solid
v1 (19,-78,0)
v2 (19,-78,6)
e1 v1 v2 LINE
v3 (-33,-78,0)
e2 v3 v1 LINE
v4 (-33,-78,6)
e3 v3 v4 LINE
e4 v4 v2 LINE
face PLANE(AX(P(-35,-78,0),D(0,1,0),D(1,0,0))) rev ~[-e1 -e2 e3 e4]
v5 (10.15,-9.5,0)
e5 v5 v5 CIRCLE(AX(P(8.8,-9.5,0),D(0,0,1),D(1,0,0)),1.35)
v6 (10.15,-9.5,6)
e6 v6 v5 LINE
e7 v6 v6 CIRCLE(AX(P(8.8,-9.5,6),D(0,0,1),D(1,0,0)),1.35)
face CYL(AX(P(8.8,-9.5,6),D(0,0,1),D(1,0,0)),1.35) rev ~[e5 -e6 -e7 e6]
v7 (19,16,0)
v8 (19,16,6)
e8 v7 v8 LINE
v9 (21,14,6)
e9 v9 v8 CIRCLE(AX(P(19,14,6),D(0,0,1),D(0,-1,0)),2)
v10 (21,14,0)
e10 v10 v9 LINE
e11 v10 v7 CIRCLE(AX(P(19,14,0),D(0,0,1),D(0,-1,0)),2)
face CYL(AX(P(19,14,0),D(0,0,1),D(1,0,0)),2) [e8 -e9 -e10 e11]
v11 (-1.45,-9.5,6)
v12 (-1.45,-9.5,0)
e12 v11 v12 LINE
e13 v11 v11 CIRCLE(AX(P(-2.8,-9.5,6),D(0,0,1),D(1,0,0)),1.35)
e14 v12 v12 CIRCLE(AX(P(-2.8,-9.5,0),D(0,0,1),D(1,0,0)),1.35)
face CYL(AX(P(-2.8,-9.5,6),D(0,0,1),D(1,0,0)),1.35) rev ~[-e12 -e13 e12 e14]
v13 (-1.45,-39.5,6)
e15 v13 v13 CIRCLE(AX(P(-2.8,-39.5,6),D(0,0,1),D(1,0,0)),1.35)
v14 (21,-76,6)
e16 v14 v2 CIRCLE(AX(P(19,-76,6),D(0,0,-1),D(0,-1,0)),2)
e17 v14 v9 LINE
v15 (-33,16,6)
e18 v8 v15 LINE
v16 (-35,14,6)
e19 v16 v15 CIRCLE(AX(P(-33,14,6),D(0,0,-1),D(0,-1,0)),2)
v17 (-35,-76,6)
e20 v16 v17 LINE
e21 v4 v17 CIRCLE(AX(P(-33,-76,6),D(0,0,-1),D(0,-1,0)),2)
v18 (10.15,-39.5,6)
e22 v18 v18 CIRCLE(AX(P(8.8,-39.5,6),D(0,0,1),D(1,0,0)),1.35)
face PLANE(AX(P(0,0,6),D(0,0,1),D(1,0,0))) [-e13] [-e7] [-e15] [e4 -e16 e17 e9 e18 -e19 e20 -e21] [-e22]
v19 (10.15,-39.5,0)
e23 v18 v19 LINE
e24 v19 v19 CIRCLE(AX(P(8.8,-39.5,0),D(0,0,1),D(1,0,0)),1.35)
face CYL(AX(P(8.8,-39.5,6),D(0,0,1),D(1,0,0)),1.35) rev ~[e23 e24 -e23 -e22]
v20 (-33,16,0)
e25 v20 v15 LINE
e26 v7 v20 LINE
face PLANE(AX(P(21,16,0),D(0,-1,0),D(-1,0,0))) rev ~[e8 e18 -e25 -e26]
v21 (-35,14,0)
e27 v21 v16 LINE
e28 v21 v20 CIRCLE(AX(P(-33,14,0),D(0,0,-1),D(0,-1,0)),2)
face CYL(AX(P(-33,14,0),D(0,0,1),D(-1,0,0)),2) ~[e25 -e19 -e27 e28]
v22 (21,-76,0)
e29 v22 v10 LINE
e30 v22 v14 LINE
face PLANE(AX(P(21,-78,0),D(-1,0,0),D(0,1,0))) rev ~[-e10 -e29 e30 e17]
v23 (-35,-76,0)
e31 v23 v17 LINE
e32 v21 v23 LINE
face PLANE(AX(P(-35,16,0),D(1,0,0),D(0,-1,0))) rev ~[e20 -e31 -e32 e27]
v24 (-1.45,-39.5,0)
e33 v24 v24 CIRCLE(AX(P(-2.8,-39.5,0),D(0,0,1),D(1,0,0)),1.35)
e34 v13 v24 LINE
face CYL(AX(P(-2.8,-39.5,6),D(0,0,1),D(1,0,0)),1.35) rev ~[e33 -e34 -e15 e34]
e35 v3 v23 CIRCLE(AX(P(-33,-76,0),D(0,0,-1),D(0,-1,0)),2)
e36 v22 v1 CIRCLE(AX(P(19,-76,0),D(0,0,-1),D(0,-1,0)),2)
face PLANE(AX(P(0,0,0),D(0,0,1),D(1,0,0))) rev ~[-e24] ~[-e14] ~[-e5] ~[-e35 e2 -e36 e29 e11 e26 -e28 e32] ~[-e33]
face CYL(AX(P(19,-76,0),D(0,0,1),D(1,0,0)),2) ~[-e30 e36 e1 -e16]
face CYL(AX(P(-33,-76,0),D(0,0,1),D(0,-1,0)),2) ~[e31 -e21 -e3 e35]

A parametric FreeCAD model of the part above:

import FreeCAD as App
import Part
import Sketcher


def edges_at(feature, points):
    """Names of the edges that pass closest to the given points."""
    edges = feature.Shape.Edges
    near = lambda p: min(range(len(edges)), key=lambda i: edges[i].distToShape(Part.Vertex(*p))[0])
    return sorted({f"Edge{near(p) + 1}" for p in points})

doc = App.newDocument("Part")
params = doc.addObject("Spreadsheet::Sheet", "Params")
for row, (alias, value) in enumerate([
    ("sketch1_diameter", "2.7 mm"),
    ("sketch1_width", "56 mm"),
    ("sketch1_height", "94 mm"),
    ("sketch1_width2", "6.1 mm"),
    ("pad1_length", "6 mm"),
    ("fillet_radius", "2 mm"),
    ("sketch2_width", "10.1 mm"),
    ("sketch2_height", "6.1 mm"),
    ("pocket1_length", "10 mm"),
    ("sketch3_diameter", "2 mm"),
    ("pocket2_length", "10 mm"),
    ("sketch4_diameter", "2.7 mm"),
    ("pocket3_length", "10 mm"),
    ("pad2_length", "6 mm"),
], start=1):
    params.set(f"A{row}", alias)
    params.set(f"B{row}", "=" + value)
    params.setAlias(f"B{row}", alias)

body = doc.addObject("PartDesign::Body", "Body")

# Sketch on XY plane
sketch1 = body.newObject("Sketcher::SketchObject", "Sketch")
sketch1.AttachmentSupport = (doc.getObject("XY_Plane"), [""])
sketch1.MapMode = "FlatFace"
sketch1.addGeometry([
    Part.LineSegment(App.Vector(21, -78, 0), App.Vector(21, 16, 0)),  # 0
    Part.LineSegment(App.Vector(21, 16, 0), App.Vector(-35, 16, 0)),  # 1
    Part.LineSegment(App.Vector(-35, 16, 0), App.Vector(-35, -78, 0)),  # 2
    Part.LineSegment(App.Vector(-35, -78, 0), App.Vector(21, -78, 0)),  # 3
    Part.Circle(App.Vector(-5, -53.9, 0), App.Vector(0, 0, 1), 1.4),  # 4
    Part.LineSegment(App.Vector(-0.1, -57, 0), App.Vector(-0.1, -50.9, 0)),  # 5
    Part.LineSegment(App.Vector(-0.1, -50.9, 0), App.Vector(6, -50.9, 0)),  # 6
    Part.LineSegment(App.Vector(6, -50.9, 0), App.Vector(6, -57, 0)),  # 7
    Part.LineSegment(App.Vector(6, -57, 0), App.Vector(-0.1, -57, 0)),  # 8
    Part.Circle(App.Vector(11, -53.9, 0), App.Vector(0, 0, 1), 1.4),  # 9
    Part.Circle(App.Vector(-5, 3, 0), App.Vector(0, 0, 1), 1.4),  # 10
    Part.LineSegment(App.Vector(-0.1, -0.1, 0), App.Vector(-0.1, 6, 0)),  # 11
    Part.LineSegment(App.Vector(-0.1, 6, 0), App.Vector(6, 6, 0)),  # 12
    Part.LineSegment(App.Vector(6, 6, 0), App.Vector(6, -0.1, 0)),  # 13
    Part.LineSegment(App.Vector(6, -0.1, 0), App.Vector(-0.1, -0.1, 0)),  # 14
    Part.Circle(App.Vector(11, 3, 0), App.Vector(0, 0, 1), 1.4),  # 15
], False)
sketch1.addConstraint([
    Sketcher.Constraint("Coincident", 0, 2, 1, 1),
    Sketcher.Constraint("Coincident", 1, 2, 2, 1),
    Sketcher.Constraint("Coincident", 2, 2, 3, 1),
    Sketcher.Constraint("Coincident", 3, 2, 0, 1),
    Sketcher.Constraint("Coincident", 5, 2, 6, 1),
    Sketcher.Constraint("Coincident", 6, 2, 7, 1),
    Sketcher.Constraint("Coincident", 7, 2, 8, 1),
    Sketcher.Constraint("Coincident", 8, 2, 5, 1),
    Sketcher.Constraint("Coincident", 11, 2, 12, 1),
    Sketcher.Constraint("Coincident", 12, 2, 13, 1),
    Sketcher.Constraint("Coincident", 13, 2, 14, 1),
    Sketcher.Constraint("Coincident", 14, 2, 11, 1),
    Sketcher.Constraint("Vertical", 0),
    Sketcher.Constraint("Horizontal", 1),
    Sketcher.Constraint("Vertical", 2),
    Sketcher.Constraint("Horizontal", 3),
    Sketcher.Constraint("Vertical", 5),
    Sketcher.Constraint("Horizontal", 6),
    Sketcher.Constraint("Vertical", 7),
    Sketcher.Constraint("Horizontal", 8),
    Sketcher.Constraint("Vertical", 11),
    Sketcher.Constraint("Horizontal", 12),
    Sketcher.Constraint("Vertical", 13),
    Sketcher.Constraint("Horizontal", 14),
    Sketcher.Constraint("Equal", 4, 9),
    Sketcher.Constraint("Equal", 9, 10),
    Sketcher.Constraint("Equal", 10, 15),
    Sketcher.Constraint("Horizontal", 4, 3, 9, 3),
    Sketcher.Constraint("Horizontal", 10, 3, 15, 3),
    Sketcher.Constraint("Vertical", 4, 3, 10, 3),
    Sketcher.Constraint("Vertical", 9, 3, 15, 3),
    Sketcher.Constraint("Vertical", 8, 2, 11, 2),
    Sketcher.Constraint("Vertical", 7, 2, 12, 2),
    Sketcher.Constraint("Equal", 14, 5),
    Sketcher.Constraint("Equal", 7, 11),
    Sketcher.Constraint("Diameter", 4, 2.7),
    Sketcher.Constraint("DistanceX", 1, 2, 1, 1, 56.0),
    Sketcher.Constraint("DistanceY", 0, 1, 0, 2, 94.0),
    Sketcher.Constraint("DistanceX", 6, 1, 6, 2, 6.1),
    Sketcher.Constraint("DistanceX", 4, 3, -1, 1, 5.0),
    Sketcher.Constraint("DistanceX", -1, 1, 9, 3, 11.0),
    Sketcher.Constraint("DistanceY", -1, 1, 10, 3, 3.0),
    Sketcher.Constraint("DistanceX", -1, 1, 0, 2, 21.0),
    Sketcher.Constraint("DistanceY", -1, 1, 0, 2, 16.0),
    Sketcher.Constraint("DistanceY", 4, 3, -1, 1, 53.9),
    Sketcher.Constraint("DistanceY", 5, 2, 11, 2, 56.9),
    Sketcher.Constraint("DistanceX", 5, 2, -1, 1, 0.05),
    Sketcher.Constraint("DistanceY", 5, 2, -1, 1, 50.85),
])
sketch1.setExpression("Constraints[35]", "Params.sketch1_diameter")
sketch1.setExpression("Constraints[36]", "Params.sketch1_width")
sketch1.setExpression("Constraints[37]", "Params.sketch1_height")
sketch1.setExpression("Constraints[38]", "Params.sketch1_width2")
pad1 = body.newObject("PartDesign::Pad", "Pad")
pad1.Profile = sketch1
pad1.setExpression("Length", "Params.pad1_length")
doc.recompute()

fillet = body.newObject("PartDesign::Fillet", "Fillet")
fillet.Base = (pad1, edges_at(pad1, [
    (-35, 16, 3),
    (21, 16, 3),
    (-35, -78, 3),
    (21, -78, 3),
]))
fillet.setExpression("Radius", "Params.fillet_radius")

# Sketch on XY plane
sketch2 = body.newObject("Sketcher::SketchObject", "Sketch001")
sketch2.AttachmentSupport = (doc.getObject("XY_Plane"), [""])
sketch2.MapMode = "FlatFace"
sketch2.AttachmentOffset = App.Placement(App.Vector(0, 0, 6), App.Rotation())
sketch2.addGeometry([
    Part.LineSegment(App.Vector(-2, 6, 0), App.Vector(-2, 0, 0)),  # 0
    Part.LineSegment(App.Vector(-2, 0, 0), App.Vector(8, 0, 0)),  # 1
    Part.LineSegment(App.Vector(8, 0, 0), App.Vector(8, 6, 0)),  # 2
    Part.LineSegment(App.Vector(8, 6, 0), App.Vector(-2, 6, 0)),  # 3
    Part.LineSegment(App.Vector(-2, -51, 0), App.Vector(-2, -57, 0)),  # 4
    Part.LineSegment(App.Vector(-2, -57, 0), App.Vector(8, -57, 0)),  # 5
    Part.LineSegment(App.Vector(8, -57, 0), App.Vector(8, -51, 0)),  # 6
    Part.LineSegment(App.Vector(8, -51, 0), App.Vector(-2, -51, 0)),  # 7
], False)
sketch2.addConstraint([
    Sketcher.Constraint("Coincident", 0, 2, 1, 1),
    Sketcher.Constraint("Coincident", 1, 2, 2, 1),
    Sketcher.Constraint("Coincident", 2, 2, 3, 1),
    Sketcher.Constraint("Coincident", 3, 2, 0, 1),
    Sketcher.Constraint("Coincident", 4, 2, 5, 1),
    Sketcher.Constraint("Coincident", 5, 2, 6, 1),
    Sketcher.Constraint("Coincident", 6, 2, 7, 1),
    Sketcher.Constraint("Coincident", 7, 2, 4, 1),
    Sketcher.Constraint("Vertical", 0),
    Sketcher.Constraint("Horizontal", 1),
    Sketcher.Constraint("Vertical", 2),
    Sketcher.Constraint("Horizontal", 3),
    Sketcher.Constraint("Vertical", 4),
    Sketcher.Constraint("Horizontal", 5),
    Sketcher.Constraint("Vertical", 6),
    Sketcher.Constraint("Horizontal", 7),
    Sketcher.Constraint("Vertical", 3, 2, 4, 2),
    Sketcher.Constraint("Vertical", 2, 2, 5, 2),
    Sketcher.Constraint("Equal", 2, 4),
    Sketcher.Constraint("DistanceX", 1, 1, 1, 2, 10.1),
    Sketcher.Constraint("DistanceY", 0, 2, 0, 1, 6.1),
    Sketcher.Constraint("DistanceY", 4, 2, 3, 2, 63.0),
    Sketcher.Constraint("DistanceX", 0, 2, -1, 1, 2.05),
    Sketcher.Constraint("DistanceY", 0, 2, -1, 1, 0.05),
])
sketch2.setExpression("Constraints[19]", "Params.sketch2_width")
sketch2.setExpression("Constraints[20]", "Params.sketch2_height")
pocket1 = body.newObject("PartDesign::Pocket", "Pocket")
pocket1.Profile = sketch2
pocket1.setExpression("Length", "Params.pocket1_length")

# Sketch on XY plane
sketch3 = body.newObject("Sketcher::SketchObject", "Sketch002")
sketch3.AttachmentSupport = (doc.getObject("XY_Plane"), [""])
sketch3.MapMode = "FlatFace"
sketch3.AttachmentOffset = App.Placement(App.Vector(0, 0, 6), App.Rotation())
sketch3.addGeometry([
    Part.Circle(App.Vector(-2, 6, 0), App.Vector(0, 0, 1), 1),  # 0
    Part.Circle(App.Vector(8.1, 6, 0), App.Vector(0, 0, 1), 1),  # 1
    Part.Circle(App.Vector(-2, -0.1, 0), App.Vector(0, 0, 1), 1),  # 2
    Part.Circle(App.Vector(8.1, -0.1, 0), App.Vector(0, 0, 1), 1),  # 3
    Part.Circle(App.Vector(-2, -50.9, 0), App.Vector(0, 0, 1), 1),  # 4
    Part.Circle(App.Vector(8.1, -50.9, 0), App.Vector(0, 0, 1), 1),  # 5
    Part.Circle(App.Vector(-2, -57, 0), App.Vector(0, 0, 1), 1),  # 6
    Part.Circle(App.Vector(8.1, -57, 0), App.Vector(0, 0, 1), 1),  # 7
], False)
sketch3.addConstraint([
    Sketcher.Constraint("Equal", 0, 1),
    Sketcher.Constraint("Equal", 1, 2),
    Sketcher.Constraint("Equal", 2, 3),
    Sketcher.Constraint("Equal", 3, 4),
    Sketcher.Constraint("Equal", 4, 5),
    Sketcher.Constraint("Equal", 5, 6),
    Sketcher.Constraint("Equal", 6, 7),
    Sketcher.Constraint("Horizontal", 0, 3, 1, 3),
    Sketcher.Constraint("Horizontal", 2, 3, 3, 3),
    Sketcher.Constraint("Horizontal", 4, 3, 5, 3),
    Sketcher.Constraint("Horizontal", 6, 3, 7, 3),
    Sketcher.Constraint("Vertical", 0, 3, 2, 3),
    Sketcher.Constraint("Vertical", 1, 3, 3, 3),
    Sketcher.Constraint("Vertical", 2, 3, 4, 3),
    Sketcher.Constraint("Vertical", 3, 3, 5, 3),
    Sketcher.Constraint("Vertical", 4, 3, 6, 3),
    Sketcher.Constraint("Vertical", 5, 3, 7, 3),
    Sketcher.Constraint("Diameter", 0, 2.0),
    Sketcher.Constraint("DistanceY", 6, 3, 0, 3, 63.0),
    Sketcher.Constraint("DistanceX", 0, 3, 1, 3, 10.1),
    Sketcher.Constraint("DistanceY", 2, 3, 0, 3, 6.1),
    Sketcher.Constraint("DistanceY", 4, 3, 2, 3, 50.8),
    Sketcher.Constraint("DistanceX", 0, 3, -1, 1, 2.05),
    Sketcher.Constraint("DistanceY", -1, 1, 0, 3, 6.05),
])
sketch3.setExpression("Constraints[17]", "Params.sketch3_diameter")
pocket2 = body.newObject("PartDesign::Pocket", "Pocket001")
pocket2.Profile = sketch3
pocket2.setExpression("Length", "Params.pocket2_length")

# Sketch on XY plane
sketch4 = body.newObject("Sketcher::SketchObject", "Sketch003")
sketch4.AttachmentSupport = (doc.getObject("XY_Plane"), [""])
sketch4.MapMode = "FlatFace"
sketch4.AttachmentOffset = App.Placement(App.Vector(0, 0, 6), App.Rotation())
sketch4.addGeometry([
    Part.Circle(App.Vector(-2.8, -9.5, 0), App.Vector(0, 0, 1), 1.4),
    Part.Circle(App.Vector(8.8, -9.5, 0), App.Vector(0, 0, 1), 1.4),
    Part.Circle(App.Vector(-2.8, -39.5, 0), App.Vector(0, 0, 1), 1.4),
    Part.Circle(App.Vector(8.8, -39.5, 0), App.Vector(0, 0, 1), 1.4),
], False)
sketch4.addConstraint([
    Sketcher.Constraint("Equal", 0, 1),
    Sketcher.Constraint("Equal", 1, 2),
    Sketcher.Constraint("Equal", 2, 3),
    Sketcher.Constraint("Horizontal", 0, 3, 1, 3),
    Sketcher.Constraint("Horizontal", 2, 3, 3, 3),
    Sketcher.Constraint("Vertical", 0, 3, 2, 3),
    Sketcher.Constraint("Vertical", 1, 3, 3, 3),
    Sketcher.Constraint("Diameter", 0, 2.7),
    Sketcher.Constraint("DistanceY", 2, 3, 0, 3, 30.0),
    Sketcher.Constraint("DistanceX", 0, 3, -1, 1, 2.8),
    Sketcher.Constraint("DistanceY", 0, 3, -1, 1, 9.5),
    Sketcher.Constraint("DistanceX", -1, 1, 1, 3, 8.8),
])
sketch4.setExpression("Constraints[7]", "Params.sketch4_diameter")
pocket3 = body.newObject("PartDesign::Pocket", "Pocket002")
pocket3.Profile = sketch4
pocket3.setExpression("Length", "Params.pocket3_length")

# Sketch on XY plane
sketch5 = body.newObject("Sketcher::SketchObject", "Sketch004")
sketch5.AttachmentSupport = (doc.getObject("XY_Plane"), [""])
sketch5.MapMode = "FlatFace"
sketch5.AttachmentOffset = App.Placement(App.Vector(0, 0, 6), App.Rotation())
sketch5.addGeometry([
    Part.LineSegment(App.Vector(14, 9, 0), App.Vector(-11, 9, 0)),  # 0
    Part.LineSegment(App.Vector(-11, 9, 0), App.Vector(-11, -5, 0)),  # 1
    Part.LineSegment(App.Vector(-11, -5, 0), App.Vector(14, -5, 0)),  # 2
    Part.LineSegment(App.Vector(14, -5, 0), App.Vector(14, 9, 0)),  # 3
    Part.LineSegment(App.Vector(16, -49, 0), App.Vector(-9, -49, 0)),  # 4
    Part.LineSegment(App.Vector(-9, -49, 0), App.Vector(-9, -65, 0)),  # 5
    Part.LineSegment(App.Vector(-9, -65, 0), App.Vector(16, -65, 0)),  # 6
    Part.LineSegment(App.Vector(16, -65, 0), App.Vector(16, -49, 0)),  # 7
], False)
sketch5.addConstraint([
    Sketcher.Constraint("Coincident", 0, 2, 1, 1),
    Sketcher.Constraint("Coincident", 1, 2, 2, 1),
    Sketcher.Constraint("Coincident", 2, 2, 3, 1),
    Sketcher.Constraint("Coincident", 3, 2, 0, 1),
    Sketcher.Constraint("Coincident", 4, 2, 5, 1),
    Sketcher.Constraint("Coincident", 5, 2, 6, 1),
    Sketcher.Constraint("Coincident", 6, 2, 7, 1),
    Sketcher.Constraint("Coincident", 7, 2, 4, 1),
    Sketcher.Constraint("Horizontal", 0),
    Sketcher.Constraint("Vertical", 1),
    Sketcher.Constraint("Horizontal", 2),
    Sketcher.Constraint("Vertical", 3),
    Sketcher.Constraint("Horizontal", 4),
    Sketcher.Constraint("Vertical", 5),
    Sketcher.Constraint("Horizontal", 6),
    Sketcher.Constraint("Vertical", 7),
    Sketcher.Constraint("DistanceX", 4, 2, 4, 1, 24.974),
    Sketcher.Constraint("DistanceX", 0, 2, 0, 1, 25.2647),
    Sketcher.Constraint("DistanceY", 1, 2, 1, 1, 14.3698),
    Sketcher.Constraint("DistanceY", 5, 2, 5, 1, 16.2252),
    Sketcher.Constraint("DistanceY", -1, 1, 0, 2, 9.439),
    Sketcher.Constraint("DistanceX", -1, 1, 2, 2, 14.088),
    Sketcher.Constraint("DistanceX", 4, 2, -1, 1, 9.3673),
    Sketcher.Constraint("DistanceY", 4, 2, -1, 1, 48.6772),
])
pad2 = body.newObject("PartDesign::Pad", "Pad001")
pad2.Profile = sketch5
pad2.setExpression("Length", "Params.pad2_length")
pad2.Reversed = True

doc.recompute()
